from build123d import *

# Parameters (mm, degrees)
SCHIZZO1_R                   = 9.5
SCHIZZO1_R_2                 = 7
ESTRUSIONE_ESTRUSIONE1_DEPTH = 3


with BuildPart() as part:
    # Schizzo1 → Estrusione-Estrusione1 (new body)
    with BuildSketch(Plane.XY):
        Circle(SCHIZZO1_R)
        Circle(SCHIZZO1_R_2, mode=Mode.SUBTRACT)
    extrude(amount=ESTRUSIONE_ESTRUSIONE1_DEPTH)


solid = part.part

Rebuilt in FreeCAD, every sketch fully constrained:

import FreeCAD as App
import Part
import Sketcher
from FreeCAD import Vector

doc = App.newDocument("Part")
params = doc.addObject("Spreadsheet::Sheet", "Params")
for row, (alias, value) in enumerate([
    ("sketch1_diameter", "19 mm"),
    ("sketch1_diameter2", "14 mm"),
    ("pad1_length", "3 mm"),
], start=1):
    params.set(f"A{row}", alias)
    params.set(f"B{row}", "=" + value)
    params.setAlias(f"B{row}", alias)

body = doc.addObject("PartDesign::Body", "Body")

# Sketch on XY plane
sketch1 = body.newObject("Sketcher::SketchObject", "Sketch")
sketch1.AttachmentSupport = (doc.getObject("XY_Plane"), [""])
sketch1.MapMode = "FlatFace"
sketch1.addGeometry(Part.Circle(Vector(0, 0, 0), Vector(0, 0, 1), 10), False)
sketch1.addGeometry(Part.Circle(Vector(0, 0, 0), Vector(0, 0, 1), 7), False)
sketch1.addConstraint(Sketcher.Constraint("Coincident", 0, 3, -1, 1))
sketch1.addConstraint(Sketcher.Constraint("Coincident", 1, 3, -1, 1))
sketch1.addConstraint(Sketcher.Constraint("Diameter", 0, 19.0))
sketch1.addConstraint(Sketcher.Constraint("Diameter", 1, 14.0))
sketch1.setExpression("Constraints[2]", "Params.sketch1_diameter")
sketch1.setExpression("Constraints[3]", "Params.sketch1_diameter2")
pad1 = body.newObject("PartDesign::Pad", "Pad")
pad1.Profile = sketch1
pad1.setExpression("Length", "Params.pad1_length")

doc.recompute()
